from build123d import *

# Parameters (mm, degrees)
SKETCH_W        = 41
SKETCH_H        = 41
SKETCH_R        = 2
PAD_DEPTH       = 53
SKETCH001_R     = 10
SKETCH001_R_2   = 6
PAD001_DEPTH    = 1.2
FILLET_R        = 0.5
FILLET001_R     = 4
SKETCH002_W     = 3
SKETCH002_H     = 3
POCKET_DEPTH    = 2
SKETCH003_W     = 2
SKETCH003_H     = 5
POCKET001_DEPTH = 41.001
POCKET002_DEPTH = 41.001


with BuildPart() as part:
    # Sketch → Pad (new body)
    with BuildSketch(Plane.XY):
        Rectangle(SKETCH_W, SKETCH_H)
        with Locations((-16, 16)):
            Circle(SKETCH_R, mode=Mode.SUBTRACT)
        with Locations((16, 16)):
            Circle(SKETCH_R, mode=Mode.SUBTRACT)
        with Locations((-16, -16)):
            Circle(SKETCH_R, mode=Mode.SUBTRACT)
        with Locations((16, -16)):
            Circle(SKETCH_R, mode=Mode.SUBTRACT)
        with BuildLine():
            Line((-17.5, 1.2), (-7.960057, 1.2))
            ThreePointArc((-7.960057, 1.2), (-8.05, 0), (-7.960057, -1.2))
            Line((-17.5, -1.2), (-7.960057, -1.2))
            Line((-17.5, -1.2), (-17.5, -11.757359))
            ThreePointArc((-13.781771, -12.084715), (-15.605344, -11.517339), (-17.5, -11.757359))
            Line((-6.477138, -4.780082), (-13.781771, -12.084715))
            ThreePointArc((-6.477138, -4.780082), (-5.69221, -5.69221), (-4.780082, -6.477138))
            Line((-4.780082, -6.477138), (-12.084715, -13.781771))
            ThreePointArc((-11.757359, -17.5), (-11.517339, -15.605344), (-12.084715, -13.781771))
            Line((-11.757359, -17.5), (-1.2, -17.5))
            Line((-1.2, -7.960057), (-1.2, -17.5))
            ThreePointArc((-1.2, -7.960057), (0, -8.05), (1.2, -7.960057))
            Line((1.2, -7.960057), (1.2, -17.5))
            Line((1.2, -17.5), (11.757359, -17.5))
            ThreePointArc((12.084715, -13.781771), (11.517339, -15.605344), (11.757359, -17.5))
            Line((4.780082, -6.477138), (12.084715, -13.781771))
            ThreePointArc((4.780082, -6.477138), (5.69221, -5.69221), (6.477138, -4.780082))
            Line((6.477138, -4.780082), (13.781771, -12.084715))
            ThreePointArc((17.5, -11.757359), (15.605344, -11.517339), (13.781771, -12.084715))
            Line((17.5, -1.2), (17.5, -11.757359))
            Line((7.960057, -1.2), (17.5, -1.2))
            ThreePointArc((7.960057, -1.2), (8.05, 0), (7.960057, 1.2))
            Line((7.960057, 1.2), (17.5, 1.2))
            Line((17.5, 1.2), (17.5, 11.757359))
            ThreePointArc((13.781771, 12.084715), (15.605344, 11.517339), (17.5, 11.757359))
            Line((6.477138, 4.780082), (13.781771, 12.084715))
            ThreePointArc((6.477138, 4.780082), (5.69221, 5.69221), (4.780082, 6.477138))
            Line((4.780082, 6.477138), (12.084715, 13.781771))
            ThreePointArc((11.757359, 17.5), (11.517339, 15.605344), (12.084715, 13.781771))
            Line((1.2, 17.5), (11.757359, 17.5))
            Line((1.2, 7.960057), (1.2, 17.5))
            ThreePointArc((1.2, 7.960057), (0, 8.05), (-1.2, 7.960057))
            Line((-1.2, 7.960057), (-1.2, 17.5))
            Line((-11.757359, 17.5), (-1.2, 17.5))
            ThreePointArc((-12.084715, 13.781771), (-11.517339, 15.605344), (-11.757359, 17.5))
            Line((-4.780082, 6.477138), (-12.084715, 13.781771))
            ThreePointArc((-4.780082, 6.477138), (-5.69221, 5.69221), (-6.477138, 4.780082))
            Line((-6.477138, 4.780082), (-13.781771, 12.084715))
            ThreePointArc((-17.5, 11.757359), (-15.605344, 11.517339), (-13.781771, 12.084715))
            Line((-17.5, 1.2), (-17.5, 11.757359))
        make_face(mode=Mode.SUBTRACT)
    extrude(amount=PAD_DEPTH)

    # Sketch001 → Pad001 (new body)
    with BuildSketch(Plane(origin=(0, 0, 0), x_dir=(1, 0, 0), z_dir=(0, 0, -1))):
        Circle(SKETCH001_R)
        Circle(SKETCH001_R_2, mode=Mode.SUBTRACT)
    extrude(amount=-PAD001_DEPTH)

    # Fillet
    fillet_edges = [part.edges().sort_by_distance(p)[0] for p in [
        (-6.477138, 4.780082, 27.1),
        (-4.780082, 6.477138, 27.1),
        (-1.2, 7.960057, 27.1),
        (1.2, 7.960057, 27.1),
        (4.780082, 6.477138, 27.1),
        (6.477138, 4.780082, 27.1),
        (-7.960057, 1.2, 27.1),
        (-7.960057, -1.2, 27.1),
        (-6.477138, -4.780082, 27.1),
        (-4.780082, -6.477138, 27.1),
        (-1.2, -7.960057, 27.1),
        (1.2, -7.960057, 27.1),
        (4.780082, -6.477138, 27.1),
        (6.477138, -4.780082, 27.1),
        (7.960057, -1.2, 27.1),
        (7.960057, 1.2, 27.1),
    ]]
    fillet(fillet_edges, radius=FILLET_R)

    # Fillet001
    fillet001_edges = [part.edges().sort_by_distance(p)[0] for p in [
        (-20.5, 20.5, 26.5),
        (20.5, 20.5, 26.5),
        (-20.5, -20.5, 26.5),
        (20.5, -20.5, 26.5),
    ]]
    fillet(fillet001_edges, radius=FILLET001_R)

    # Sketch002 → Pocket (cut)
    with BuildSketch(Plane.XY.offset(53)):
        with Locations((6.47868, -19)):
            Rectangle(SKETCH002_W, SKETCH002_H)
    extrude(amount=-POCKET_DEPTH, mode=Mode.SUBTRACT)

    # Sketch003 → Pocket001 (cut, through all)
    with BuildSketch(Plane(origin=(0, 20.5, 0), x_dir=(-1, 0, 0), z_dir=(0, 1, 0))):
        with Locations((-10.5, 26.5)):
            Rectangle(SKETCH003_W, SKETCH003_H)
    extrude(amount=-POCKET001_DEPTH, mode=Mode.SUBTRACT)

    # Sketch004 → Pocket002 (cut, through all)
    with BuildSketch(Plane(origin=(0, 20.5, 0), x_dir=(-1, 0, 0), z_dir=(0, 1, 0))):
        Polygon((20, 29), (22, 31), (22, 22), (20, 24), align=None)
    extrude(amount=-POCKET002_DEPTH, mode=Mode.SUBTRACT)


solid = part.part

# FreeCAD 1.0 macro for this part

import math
import FreeCAD as App
import Part
import Sketcher
from FreeCAD import Vector
Q = App.Units.Quantity


def edges_at(feature, points):
    """Names of the edges that pass closest to the given points."""
    edges = feature.Shape.Edges
    near = lambda p: min(range(len(edges)), key=lambda i: edges[i].distToShape(Part.Vertex(*p))[0])
    return sorted({f"Edge{near(p) + 1}" for p in points})


def add_polygon(sketch, points):
    """Adds a closed chain of lines whose ends are joined by coincident constraints."""
    first, n = sketch.GeometryCount, len(points)
    for a, b in zip(points, points[1:] + points[:1]):
        sketch.addGeometry(Part.LineSegment(App.Vector(*a, 0), App.Vector(*b, 0)), False)
    for i in range(n):
        sketch.addConstraint(Sketcher.Constraint("Coincident", first + i, 2, first + (i + 1) % n, 1))

doc = App.newDocument("Part")
body = doc.addObject("PartDesign::Body", "Body")

sketch1 = body.newObject("Sketcher::SketchObject", "Sketch")
sketch1.AttachmentSupport = (doc.getObject("XY_Plane"), [""])
sketch1.MapMode = "FlatFace"
add_polygon(sketch1, [(-20.5, 20.5), (-20.5, -20.5), (20.5, -20.5), (20.5, 20.5)])
sketch1.addGeometry(Part.Circle(Vector(-16, -16, 0), Vector(0, 0, 1), 2), False)
sketch1.addGeometry(Part.Circle(Vector(16, -16, 0), Vector(0, 0, 1), 2), False)
sketch1.addGeometry(Part.Circle(Vector(-16, 16, 0), Vector(0, 0, 1), 2), False)
sketch1.addGeometry(Part.LineSegment(Vector(-7.960057, 1.2, 0), Vector(-17.5, 1.2, 0)), False)
sketch1.addGeometry(Part.LineSegment(Vector(-17.5, 1.2, 0), Vector(-17.5, 11.757359, 0)), False)
sketch1.addGeometry(Part.ArcOfCircle(Part.Circle(Vector(-16, 15.999996, 0), Vector(0, 0, 1), 4.499996), math.radians(-109.471232), math.radians(-60.465977)), False)
sketch1.addGeometry(Part.LineSegment(Vector(-13.781771, 12.084715, 0), Vector(-6.477138, 4.780082, 0)), False)
sketch1.addGeometry(Part.ArcOfCircle(Part.Circle(Vector(-0.000034, 0.000034, 0), Vector(0, 0, 1), 8.049952), math.radians(126.427011), math.radians(143.572989)), False)
sketch1.addGeometry(Part.LineSegment(Vector(-4.780082, 6.477138, 0), Vector(-12.084715, 13.781771, 0)), False)
sketch1.addGeometry(Part.ArcOfCircle(Part.Circle(Vector(-15.999996, 16, 0), Vector(0, 0, 1), 4.499996), math.radians(-29.534023), math.radians(19.471232)), False)
sketch1.addGeometry(Part.LineSegment(Vector(-11.757359, 17.5, 0), Vector(-1.2, 17.5, 0)), False)
sketch1.addGeometry(Part.LineSegment(Vector(-1.2, 17.5, 0), Vector(-1.2, 7.960057, 0)), False)
sketch1.addGeometry(Part.ArcOfCircle(Part.Circle(Vector(0, -0.000041, 0), Vector(0, 0, 1), 8.050041), math.radians(81.427106), math.radians(98.572894)), False)
sketch1.addGeometry(Part.LineSegment(Vector(1.2, 7.960057, 0), Vector(1.2, 17.5, 0)), False)
sketch1.addGeometry(Part.LineSegment(Vector(1.2, 17.5, 0), Vector(11.757359, 17.5, 0)), False)
sketch1.addGeometry(Part.ArcOfCircle(Part.Circle(Vector(15.999996, 16, 0), Vector(0, 0, 1), 4.499996), math.radians(160.528768), math.radians(209.534023)), False)
sketch1.addGeometry(Part.LineSegment(Vector(12.084715, 13.781771, 0), Vector(4.780082, 6.477138, 0)), False)
sketch1.addGeometry(Part.ArcOfCircle(Part.Circle(Vector(0.000034, 0.000034, 0), Vector(0, 0, 1), 8.049952), math.radians(36.427011), math.radians(53.572989)), False)
sketch1.addGeometry(Part.LineSegment(Vector(6.477138, 4.780082, 0), Vector(13.781771, 12.084715, 0)), False)
sketch1.addGeometry(Part.ArcOfCircle(Part.Circle(Vector(16, 15.999996, 0), Vector(0, 0, 1), 4.499996), math.radians(-119.534023), math.radians(-70.528768)), False)
sketch1.addGeometry(Part.LineSegment(Vector(17.5, 11.757359, 0), Vector(17.5, 1.2, 0)), False)
sketch1.addGeometry(Part.LineSegment(Vector(17.5, 1.2, 0), Vector(7.960057, 1.2, 0)), False)
sketch1.addGeometry(Part.ArcOfCircle(Part.Circle(Vector(-0.000041, 0, 0), Vector(0, 0, 1), 8.050041), math.radians(-8.572894), math.radians(8.572894)), False)
sketch1.addGeometry(Part.LineSegment(Vector(7.960057, -1.2, 0), Vector(17.5, -1.2, 0)), False)
sketch1.addGeometry(Part.LineSegment(Vector(17.5, -1.2, 0), Vector(17.5, -11.757359, 0)), False)
sketch1.addGeometry(Part.ArcOfCircle(Part.Circle(Vector(16, -15.999996, 0), Vector(0, 0, 1), 4.499996), math.radians(70.528768), math.radians(119.534023)), False)
sketch1.addGeometry(Part.LineSegment(Vector(13.781771, -12.084715, 0), Vector(6.477138, -4.780082, 0)), False)
sketch1.addGeometry(Part.ArcOfCircle(Part.Circle(Vector(0.000034, -0.000034, 0), Vector(0, 0, 1), 8.049952), math.radians(-53.572989), math.radians(-36.427011)), False)
sketch1.addGeometry(Part.LineSegment(Vector(4.780082, -6.477138, 0), Vector(12.084715, -13.781771, 0)), False)
sketch1.addGeometry(Part.ArcOfCircle(Part.Circle(Vector(15.999996, -16, 0), Vector(0, 0, 1), 4.499996), math.radians(150.465977), math.radians(199.471232)), False)
sketch1.addGeometry(Part.LineSegment(Vector(11.757359, -17.5, 0), Vector(1.2, -17.5, 0)), False)
sketch1.addGeometry(Part.LineSegment(Vector(1.2, -17.5, 0), Vector(1.2, -7.960057, 0)), False)
sketch1.addGeometry(Part.ArcOfCircle(Part.Circle(Vector(0, 0.000041, 0), Vector(0, 0, 1), 8.050041), math.radians(-98.572894), math.radians(-81.427106)), False)
sketch1.addGeometry(Part.LineSegment(Vector(-1.2, -7.960057, 0), Vector(-1.2, -17.5, 0)), False)
sketch1.addGeometry(Part.LineSegment(Vector(-1.2, -17.5, 0), Vector(-11.757359, -17.5, 0)), False)
sketch1.addGeometry(Part.ArcOfCircle(Part.Circle(Vector(-15.999996, -16, 0), Vector(0, 0, 1), 4.499996), math.radians(-19.471232), math.radians(29.534023)), False)
sketch1.addGeometry(Part.LineSegment(Vector(-12.084715, -13.781771, 0), Vector(-4.780082, -6.477138, 0)), False)
sketch1.addGeometry(Part.ArcOfCircle(Part.Circle(Vector(-0.000034, -0.000034, 0), Vector(0, 0, 1), 8.049952), math.radians(-143.572989), math.radians(-126.427011)), False)
sketch1.addGeometry(Part.LineSegment(Vector(-6.477138, -4.780082, 0), Vector(-13.781771, -12.084715, 0)), False)
sketch1.addGeometry(Part.ArcOfCircle(Part.Circle(Vector(-16, -15.999996, 0), Vector(0, 0, 1), 4.499996), math.radians(60.465977), math.radians(109.471232)), False)
sketch1.addGeometry(Part.LineSegment(Vector(-17.5, -11.757359, 0), Vector(-17.5, -1.2, 0)), False)
sketch1.addGeometry(Part.LineSegment(Vector(-17.5, -1.2, 0), Vector(-7.960057, -1.2, 0)), False)
sketch1.addGeometry(Part.ArcOfCircle(Part.Circle(Vector(0.000041, 0, 0), Vector(0, 0, 1), 8.050041), math.radians(171.427106), math.radians(188.572894)), False)
sketch1.addGeometry(Part.Circle(Vector(16, 16, 0), Vector(0, 0, 1), 2), False)
sketch1.addConstraint([
    Sketcher.Constraint("Coincident", 7, 2, 8, 1),
    Sketcher.Constraint("Coincident", 8, 2, 9, 1),
    Sketcher.Constraint("Coincident", 9, 2, 10, 1),
    Sketcher.Constraint("Coincident", 10, 2, 11, 2),
    Sketcher.Constraint("Coincident", 11, 1, 12, 1),
    Sketcher.Constraint("Coincident", 12, 2, 13, 1),
    Sketcher.Constraint("Coincident", 13, 2, 14, 1),
    Sketcher.Constraint("Coincident", 14, 2, 15, 1),
    Sketcher.Constraint("Coincident", 15, 2, 16, 2),
    Sketcher.Constraint("Coincident", 16, 1, 17, 1),
    Sketcher.Constraint("Coincident", 17, 2, 18, 1),
    Sketcher.Constraint("Coincident", 18, 2, 19, 1),
    Sketcher.Constraint("Coincident", 19, 2, 20, 1),
    Sketcher.Constraint("Coincident", 20, 2, 21, 2),
    Sketcher.Constraint("Coincident", 21, 1, 22, 1),
    Sketcher.Constraint("Coincident", 22, 2, 23, 1),
    Sketcher.Constraint("Coincident", 23, 2, 24, 1),
    Sketcher.Constraint("Coincident", 24, 2, 25, 1),
    Sketcher.Constraint("Coincident", 25, 2, 26, 2),
    Sketcher.Constraint("Coincident", 26, 1, 27, 1),
    Sketcher.Constraint("Coincident", 27, 2, 28, 1),
    Sketcher.Constraint("Coincident", 28, 2, 29, 1),
    Sketcher.Constraint("Coincident", 29, 2, 30, 1),
    Sketcher.Constraint("Coincident", 30, 2, 31, 2),
    Sketcher.Constraint("Coincident", 31, 1, 32, 1),
    Sketcher.Constraint("Coincident", 32, 2, 33, 1),
    Sketcher.Constraint("Coincident", 33, 2, 34, 1),
    Sketcher.Constraint("Coincident", 34, 2, 35, 1),
    Sketcher.Constraint("Coincident", 35, 2, 36, 2),
    Sketcher.Constraint("Coincident", 36, 1, 37, 1),
    Sketcher.Constraint("Coincident", 37, 2, 38, 1),
    Sketcher.Constraint("Coincident", 38, 2, 39, 1),
    Sketcher.Constraint("Coincident", 39, 2, 40, 1),
    Sketcher.Constraint("Coincident", 40, 2, 41, 2),
    Sketcher.Constraint("Coincident", 41, 1, 42, 1),
    Sketcher.Constraint("Coincident", 42, 2, 43, 1),
    Sketcher.Constraint("Coincident", 43, 2, 44, 1),
    Sketcher.Constraint("Coincident", 44, 2, 45, 1),
    Sketcher.Constraint("Coincident", 45, 2, 46, 2),
    Sketcher.Constraint("Coincident", 46, 1, 7, 1),
    Sketcher.Constraint("Vertical", 0),
    Sketcher.Constraint("Horizontal", 1),
    Sketcher.Constraint("Vertical", 2),
    Sketcher.Constraint("Horizontal", 3),
    Sketcher.Constraint("Horizontal", 7),
    Sketcher.Constraint("Vertical", 8),
    Sketcher.Constraint("Horizontal", 14),
    Sketcher.Constraint("Vertical", 15),
    Sketcher.Constraint("Vertical", 17),
    Sketcher.Constraint("Horizontal", 18),
    Sketcher.Constraint("Vertical", 24),
    Sketcher.Constraint("Horizontal", 25),
    Sketcher.Constraint("Horizontal", 27),
    Sketcher.Constraint("Vertical", 28),
    Sketcher.Constraint("Horizontal", 34),
    Sketcher.Constraint("Vertical", 35),
    Sketcher.Constraint("Vertical", 37),
    Sketcher.Constraint("Horizontal", 38),
    Sketcher.Constraint("Vertical", 44),
    Sketcher.Constraint("Horizontal", 45),
    Sketcher.Constraint("Coincident", 9, 3, 6, 3),
    Sketcher.Constraint("Coincident", 13, 3, 6, 3),
    Sketcher.Constraint("Coincident", 23, 3, 19, 3),
    Sketcher.Constraint("Coincident", 29, 3, 5, 3),
    Sketcher.Constraint("Coincident", 33, 3, 5, 3),
    Sketcher.Constraint("Coincident", 39, 3, 4, 3),
    Sketcher.Constraint("Coincident", 43, 3, 4, 3),
    Sketcher.Constraint("Coincident", 47, 3, 19, 3),
    Sketcher.Constraint("Equal", 4, 5),
    Sketcher.Constraint("Equal", 5, 6),
    Sketcher.Constraint("Equal", 9, 13),
    Sketcher.Constraint("Equal", 13, 19),
    Sketcher.Constraint("Equal", 11, 21),
    Sketcher.Constraint("Equal", 19, 23),
    Sketcher.Constraint("Equal", 16, 26),
    Sketcher.Constraint("Equal", 23, 29),
    Sketcher.Constraint("Equal", 21, 31),
    Sketcher.Constraint("Equal", 29, 33),
    Sketcher.Constraint("Equal", 26, 36),
    Sketcher.Constraint("Equal", 33, 39),
    Sketcher.Constraint("Equal", 31, 41),
    Sketcher.Constraint("Equal", 39, 43),
    Sketcher.Constraint("Equal", 36, 46),
    Sketcher.Constraint("Equal", 6, 47),
    Sketcher.Constraint("Symmetric", 5, 3, 6, 3, -1, 1),
    Sketcher.Constraint("Symmetric", 4, 3, 19, 3, -1, 1),
    Sketcher.Constraint("Symmetric", 11, 3, 31, 3, -1, 1),
    Sketcher.Constraint("Symmetric", 16, 3, 36, 3, -1, 1),
    Sketcher.Constraint("Symmetric", 21, 3, 41, 3, -1, 1),
    Sketcher.Constraint("Symmetric", 26, 3, 46, 3, -1, 1),
    Sketcher.Constraint("Symmetric", 0, 2, 2, 2, -1, 1),
    Sketcher.Constraint("Symmetric", 7, 2, 27, 2, -1, 1),
    Sketcher.Constraint("Symmetric", 14, 2, 34, 2, -1, 1),
    Sketcher.Constraint("Symmetric", 17, 2, 37, 2, -1, 1),
    Sketcher.Constraint("Symmetric", 24, 2, 44, 2, -1, 1),
    Sketcher.Constraint("Symmetric", 4, 3, 5, 3, -2),
    Sketcher.Constraint("Symmetric", 11, 3, 21, 3, -2),
    Sketcher.Constraint("Symmetric", 15, 2, 16, 1, -2),
    Sketcher.Constraint("Symmetric", 7, 2, 24, 2, -2),
    Sketcher.Constraint("PointOnObject", 26, 3, -1),
    Sketcher.Constraint("Parallel", 10, 12),
    Sketcher.Constraint("Perpendicular", 12, 20),
    Sketcher.Constraint("Parallel", 20, 22),
    Sketcher.Constraint("Perpendicular", 22, 30),
    Sketcher.Constraint("Parallel", 30, 32),
    Sketcher.Constraint("Perpendicular", 32, 40),
    Sketcher.Constraint("Parallel", 40, 42),
    Sketcher.Constraint("Horizontal", 14, 2, 17, 2),
    Sketcher.Constraint("Horizontal", 12, 2, 19, 2),
    Sketcher.Constraint("Horizontal", 11, 1, 20, 2),
    Sketcher.Constraint("Horizontal", 10, 2, 21, 1),
    Sketcher.Constraint("Horizontal", 32, 2, 39, 2),
    Sketcher.Constraint("Horizontal", 30, 2, 41, 1),
    Sketcher.Constraint("Vertical", 22, 2, 29, 2),
    Sketcher.Constraint("Vertical", 20, 2, 31, 1),
    Sketcher.Constraint("Equal", 3, 0),
    Sketcher.Constraint("Equal", 38, 8),
    Sketcher.Constraint("Equal", 45, 15),
    Sketcher.Constraint("Equal", 10, 12),
    Sketcher.Constraint("Diameter", 4, Q("4 mm")),
    Sketcher.Constraint("DistanceX", 1, 1, 1, 2, Q("41 mm")),
    Sketcher.Constraint("DistanceX", 4, 3, -1, 1, Q("16 mm")),
    Sketcher.Constraint("DistanceY", 4, 3, -1, 1, Q("16 mm")),
    Sketcher.Constraint("DistanceX", 7, 2, -1, 1, Q("17.5 mm")),
    Sketcher.Constraint("DistanceY", -1, 1, 7, 2, Q("1.2 mm")),
    Sketcher.Constraint("DistanceY", -1, 1, 13, 2, Q("17.5 mm")),
    Sketcher.Constraint("Radius", 11, Q("8.049952 mm")),
    Sketcher.Constraint("Radius", 16, Q("8.050041 mm")),
    Sketcher.Constraint("Radius", 9, Q("4.499996 mm")),
    Sketcher.Constraint("Distance", 10, Q("10.330311 mm")),
    Sketcher.Constraint("DistanceX", 7, 2, 7, 1, Q("9.539943 mm")),
    Sketcher.Constraint("DistanceX", 9, 2, -1, 1, Q("13.781771 mm")),
    Sketcher.Constraint("DistanceY", -1, 1, 11, 1, Q("6.477138 mm")),
])
pad1 = body.newObject("PartDesign::Pad", "Pad")
pad1.Profile = sketch1
pad1.Length = 53

sketch2 = body.newObject("Sketcher::SketchObject", "Sketch001")
sketch2.AttachmentSupport = (doc.getObject("XY_Plane"), [""])
sketch2.MapMode = "FlatFace"
sketch2.addGeometry([
    Part.Circle(Vector(0, 0, 0), Vector(0, 0, 1), 10),
    Part.Circle(Vector(0, 0, 0), Vector(0, 0, 1), 6),
], False)
sketch2.addConstraint([
    Sketcher.Constraint("Coincident", 0, 3, -1, 1),
    Sketcher.Constraint("Coincident", 1, 3, -1, 1),
    Sketcher.Constraint("Diameter", 0, Q("20 mm")),
    Sketcher.Constraint("Diameter", 1, Q("12 mm")),
])
pad2 = body.newObject("PartDesign::Pad", "Pad001")
pad2.Profile = sketch2
pad2.Length = 1.2
doc.recompute()

fillet = body.newObject("PartDesign::Fillet", "Fillet")
fillet.Base = (pad2, edges_at(pad2, [
    (-6.477, 4.78, 27.1),
    (-4.78, 6.477, 27.1),
    (-1.2, 7.96, 27.1),
    (1.2, 7.96, 27.1),
    (4.78, 6.477, 27.1),
    (6.477, 4.78, 27.1),
    (-7.96, 1.2, 27.1),
    (-7.96, -1.2, 27.1),
    (-6.477, -4.78, 27.1),
    (-4.78, -6.477, 27.1),
    (-1.2, -7.96, 27.1),
    (1.2, -7.96, 27.1),
    (4.78, -6.477, 27.1),
    (6.477, -4.78, 27.1),
    (7.96, -1.2, 27.1),
    (7.96, 1.2, 27.1),
]))
fillet.Radius = 0.5
doc.recompute()

fillet2 = body.newObject("PartDesign::Fillet", "Fillet001")
fillet2.Base = (fillet, edges_at(fillet, [
    (-20.5, 20.5, 26.5),
    (20.5, 20.5, 26.5),
    (-20.5, -20.5, 26.5),
    (20.5, -20.5, 26.5),
]))
fillet2.Radius = 4

sketch3 = body.newObject("Sketcher::SketchObject", "Sketch002")
sketch3.AttachmentSupport = (doc.getObject("XY_Plane"), [""])
sketch3.MapMode = "FlatFace"
sketch3.AttachmentOffset = App.Placement(Vector(0, 0, 53), App.Rotation())
add_polygon(sketch3, [(4.97868, -17.5), (4.97868, -20.5), (7.97868, -20.5), (7.97868, -17.5)])
sketch3.addConstraint([
    Sketcher.Constraint("Vertical", 0),
    Sketcher.Constraint("Horizontal", 1),
    Sketcher.Constraint("Vertical", 2),
    Sketcher.Constraint("Horizontal", 3),
    Sketcher.Constraint("Equal", 3, 0),
    Sketcher.Constraint("DistanceX", 1, 1, 1, 2, Q("3 mm")),
    Sketcher.Constraint("DistanceY", 0, 2, -1, 1, Q("20.5 mm")),
    Sketcher.Constraint("DistanceX", -1, 1, 0, 2, Q("4.97868 mm")),
])
pocket1 = body.newObject("PartDesign::Pocket", "Pocket")
pocket1.Profile = sketch3
pocket1.Length = 2

sketch4 = body.newObject("Sketcher::SketchObject", "Sketch003")
sketch4.AttachmentSupport = (doc.getObject("XZ_Plane"), [""])
sketch4.MapMode = "FlatFace"
sketch4.AttachmentOffset = App.Placement(Vector(0, 0, -20.5), App.Rotation())
add_polygon(sketch4, [(11.5, 29), (11.5, 24), (9.5, 24), (9.5, 29)])
sketch4.addConstraint([
    Sketcher.Constraint("Vertical", 0),
    Sketcher.Constraint("Horizontal", 1),
    Sketcher.Constraint("Vertical", 2),
    Sketcher.Constraint("Horizontal", 3),
    Sketcher.Constraint("DistanceX", 1, 2, 1, 1, Q("2 mm")),
    Sketcher.Constraint("DistanceY", 0, 2, 0, 1, Q("5 mm")),
    Sketcher.Constraint("DistanceY", -1, 1, 0, 2, Q("24 mm")),
    Sketcher.Constraint("DistanceX", -1, 1, 0, 2, Q("11.5 mm")),
])
pocket2 = body.newObject("PartDesign::Pocket", "Pocket001")
pocket2.Profile = sketch4
pocket2.Type = "ThroughAll"
pocket2.Reversed = True

sketch5 = body.newObject("Sketcher::SketchObject", "Sketch004")
sketch5.AttachmentSupport = (doc.getObject("XZ_Plane"), [""])
sketch5.MapMode = "FlatFace"
sketch5.AttachmentOffset = App.Placement(Vector(0, 0, -20.5), App.Rotation())
add_polygon(sketch5, [(-22, 31), (-20, 29), (-20, 24), (-22, 22)])
sketch5.addConstraint([
    Sketcher.Constraint("Vertical", 1),
    Sketcher.Constraint("Vertical", 3),
    Sketcher.Constraint("Perpendicular", 0, 2),
    Sketcher.Constraint("Equal", 0, 2),
    Sketcher.Constraint("DistanceY", 1, 2, 1, 1, Q("5 mm")),
    Sketcher.Constraint("DistanceY", 3, 1, 3, 2, Q("9 mm")),
    Sketcher.Constraint("DistanceX", 0, 2, -1, 1, Q("20 mm")),
    Sketcher.Constraint("DistanceY", -1, 1, 0, 2, Q("29 mm")),
])
pocket3 = body.newObject("PartDesign::Pocket", "Pocket002")
pocket3.Profile = sketch5
pocket3.Type = "ThroughAll"
pocket3.Reversed = True

doc.recompute()
